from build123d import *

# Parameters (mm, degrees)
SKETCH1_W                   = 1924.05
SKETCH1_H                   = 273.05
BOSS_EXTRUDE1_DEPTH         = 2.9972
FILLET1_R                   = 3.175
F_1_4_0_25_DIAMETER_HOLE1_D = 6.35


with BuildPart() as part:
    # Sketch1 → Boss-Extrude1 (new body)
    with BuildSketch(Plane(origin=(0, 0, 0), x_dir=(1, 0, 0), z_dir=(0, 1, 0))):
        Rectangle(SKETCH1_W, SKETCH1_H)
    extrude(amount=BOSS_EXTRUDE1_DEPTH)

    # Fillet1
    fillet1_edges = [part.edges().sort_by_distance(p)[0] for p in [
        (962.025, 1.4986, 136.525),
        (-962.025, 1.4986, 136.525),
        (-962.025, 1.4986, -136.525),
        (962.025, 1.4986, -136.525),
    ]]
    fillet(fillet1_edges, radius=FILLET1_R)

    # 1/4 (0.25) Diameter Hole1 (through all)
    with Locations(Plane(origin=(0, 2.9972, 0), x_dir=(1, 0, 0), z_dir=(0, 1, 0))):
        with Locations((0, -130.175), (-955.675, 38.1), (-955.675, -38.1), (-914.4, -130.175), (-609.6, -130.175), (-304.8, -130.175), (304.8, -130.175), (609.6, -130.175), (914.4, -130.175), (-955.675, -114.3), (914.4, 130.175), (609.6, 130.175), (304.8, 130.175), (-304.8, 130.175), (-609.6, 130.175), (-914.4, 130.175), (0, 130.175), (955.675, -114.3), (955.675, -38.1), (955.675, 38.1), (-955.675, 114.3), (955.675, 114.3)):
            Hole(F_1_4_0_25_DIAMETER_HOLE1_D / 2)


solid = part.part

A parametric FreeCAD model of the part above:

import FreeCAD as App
import Part
import Sketcher
from FreeCAD import Vector
Q = App.Units.Quantity


def edges_at(feature, points):
    """Names of the edges that pass closest to the given points."""
    edges = feature.Shape.Edges
    near = lambda p: min(range(len(edges)), key=lambda i: edges[i].distToShape(Part.Vertex(*p))[0])
    return sorted({f"Edge{near(p) + 1}" for p in points})


def add_polygon(sketch, points):
    """Adds a closed chain of lines whose ends are joined by coincident constraints."""
    first, n = sketch.GeometryCount, len(points)
    for a, b in zip(points, points[1:] + points[:1]):
        sketch.addGeometry(Part.LineSegment(App.Vector(*a, 0), App.Vector(*b, 0)), False)
    for i in range(n):
        sketch.addConstraint(Sketcher.Constraint("Coincident", first + i, 2, first + (i + 1) % n, 1))

doc = App.newDocument("Part")
body = doc.addObject("PartDesign::Body", "Body")

# Sketch on XZ plane
sketch1 = doc.addObject("Sketcher::SketchObject", "Sketch")
body.addObject(sketch1)
sketch1.AttachmentSupport = (doc.XZ_Plane, [""])
sketch1.MapMode = "FlatFace"
add_polygon(sketch1, [(-962, -137), (-962, 137), (962, 137), (962, -137)])  # lines 0-3
sketch1.addConstraint([
    Sketcher.Constraint("Vertical", 0),
    Sketcher.Constraint("Horizontal", 1),
    Sketcher.Constraint("Vertical", 2),
    Sketcher.Constraint("Horizontal", 3),
    Sketcher.Constraint("Symmetric", 0, 2, 2, 2, -1, 1),
    Sketcher.Constraint("DistanceX", 1, 1, 1, 2, Q("75.75 in")),
    Sketcher.Constraint("DistanceY", 0, 1, 0, 2, Q("10.75 in")),
])
pad1 = doc.addObject("PartDesign::Pad", "Pad")
body.addObject(pad1)
pad1.Profile = sketch1
pad1.Length = Q("0.118 in")
pad1.Reversed = True
doc.recompute()

fillet = doc.addObject("PartDesign::Fillet", "Fillet")
body.addObject(fillet)
fillet.Base = (pad1, edges_at(pad1, [
    (962.025, 1.499, 136.525),
    (-962.025, 1.499, 136.525),
    (-962.025, 1.499, -136.525),
    (962.025, 1.499, -136.525),
]))
fillet.Radius = Q("0.125 in")

# Sketch on XZ plane
sketch2 = doc.addObject("Sketcher::SketchObject", "Sketch001")
body.addObject(sketch2)
sketch2.AttachmentSupport = (doc.XZ_Plane, [""])
sketch2.MapMode = "FlatFace"
sketch2.AttachmentOffset = App.Placement(Vector(0, 0, -0.118 * 25.4), App.Rotation())
sketch2.addGeometry([
    Part.Circle(Vector(0, 130.2, 0), Vector(0, 0, 1), 3.2),  # 0
    Part.Circle(Vector(-955.7, -38.1, 0), Vector(0, 0, 1), 3.2),  # 1
    Part.Circle(Vector(-955.7, 38.1, 0), Vector(0, 0, 1), 3.2),  # 2
    Part.Circle(Vector(-914.4, 130.2, 0), Vector(0, 0, 1), 3.2),  # 3
    Part.Circle(Vector(-609.6, 130.2, 0), Vector(0, 0, 1), 3.2),  # 4
    Part.Circle(Vector(-304.8, 130.2, 0), Vector(0, 0, 1), 3.2),  # 5
    Part.Circle(Vector(304.8, 130.2, 0), Vector(0, 0, 1), 3.2),  # 6
    Part.Circle(Vector(609.6, 130.2, 0), Vector(0, 0, 1), 3.2),  # 7
    Part.Circle(Vector(914.4, 130.2, 0), Vector(0, 0, 1), 3.2),  # 8
    Part.Circle(Vector(-955.7, 114.3, 0), Vector(0, 0, 1), 3.2),  # 9
    Part.Circle(Vector(914.4, -130.2, 0), Vector(0, 0, 1), 3.2),  # 10
    Part.Circle(Vector(609.6, -130.2, 0), Vector(0, 0, 1), 3.2),  # 11
    Part.Circle(Vector(304.8, -130.2, 0), Vector(0, 0, 1), 3.2),  # 12
    Part.Circle(Vector(-304.8, -130.2, 0), Vector(0, 0, 1), 3.2),  # 13
    Part.Circle(Vector(-609.6, -130.2, 0), Vector(0, 0, 1), 3.2),  # 14
    Part.Circle(Vector(-914.4, -130.2, 0), Vector(0, 0, 1), 3.2),  # 15
    Part.Circle(Vector(0, -130.2, 0), Vector(0, 0, 1), 3.2),  # 16
    Part.Circle(Vector(955.7, 114.3, 0), Vector(0, 0, 1), 3.2),  # 17
    Part.Circle(Vector(955.7, 38.1, 0), Vector(0, 0, 1), 3.2),  # 18
    Part.Circle(Vector(955.7, -38.1, 0), Vector(0, 0, 1), 3.2),  # 19
    Part.Circle(Vector(-955.7, -114.3, 0), Vector(0, 0, 1), 3.2),  # 20
    Part.Circle(Vector(955.7, -114.3, 0), Vector(0, 0, 1), 3.2),  # 21
], False)
sketch2.addConstraint([
    Sketcher.Constraint("Equal", 0, 1),
    Sketcher.Constraint("Equal", 1, 2),
    Sketcher.Constraint("Equal", 2, 3),
    Sketcher.Constraint("Equal", 3, 4),
    Sketcher.Constraint("Equal", 4, 5),
    Sketcher.Constraint("Equal", 5, 6),
    Sketcher.Constraint("Equal", 6, 7),
    Sketcher.Constraint("Equal", 7, 8),
    Sketcher.Constraint("Equal", 8, 9),
    Sketcher.Constraint("Equal", 9, 10),
    Sketcher.Constraint("Equal", 10, 11),
    Sketcher.Constraint("Equal", 11, 12),
    Sketcher.Constraint("Equal", 12, 13),
    Sketcher.Constraint("Equal", 13, 14),
    Sketcher.Constraint("Equal", 14, 15),
    Sketcher.Constraint("Equal", 15, 16),
    Sketcher.Constraint("Equal", 16, 17),
    Sketcher.Constraint("Equal", 17, 18),
    Sketcher.Constraint("Equal", 18, 19),
    Sketcher.Constraint("Equal", 19, 20),
    Sketcher.Constraint("Equal", 20, 21),
    Sketcher.Constraint("Symmetric", 3, 3, 10, 3, -1, 1),
    Sketcher.Constraint("Symmetric", 4, 3, 11, 3, -1, 1),
    Sketcher.Constraint("Symmetric", 5, 3, 12, 3, -1, 1),
    Sketcher.Constraint("Symmetric", 6, 3, 13, 3, -1, 1),
    Sketcher.Constraint("Symmetric", 7, 3, 14, 3, -1, 1),
    Sketcher.Constraint("Symmetric", 8, 3, 15, 3, -1, 1),
    Sketcher.Constraint("Symmetric", 0, 3, 16, 3, -1, 1),
    Sketcher.Constraint("Symmetric", 1, 3, 18, 3, -1, 1),
    Sketcher.Constraint("Symmetric", 2, 3, 19, 3, -1, 1),
    Sketcher.Constraint("Symmetric", 17, 3, 20, 3, -1, 1),
    Sketcher.Constraint("Symmetric", 9, 3, 21, 3, -1, 1),
    Sketcher.Constraint("Symmetric", 5, 3, 6, 3, -2),
    Sketcher.Constraint("Symmetric", 4, 3, 7, 3, -2),
    Sketcher.Constraint("Symmetric", 3, 3, 8, 3, -2),
    Sketcher.Constraint("Symmetric", 9, 3, 17, 3, -2),
    Sketcher.Constraint("Symmetric", 2, 3, 18, 3, -2),
    Sketcher.Constraint("PointOnObject", 0, 3, -2),
    Sketcher.Constraint("Horizontal", 0, 3, 3, 3),
    Sketcher.Constraint("Horizontal", 3, 3, 4, 3),
    Sketcher.Constraint("Horizontal", 4, 3, 5, 3),
    Sketcher.Constraint("Vertical", 2, 3, 9, 3),
    Sketcher.Constraint("Diameter", 0, Q("0.25 in")),
    Sketcher.Constraint("DistanceX", 3, 3, -1, 1, Q("36 in")),
    Sketcher.Constraint("DistanceX", 4, 3, -1, 1, Q("24 in")),
    Sketcher.Constraint("DistanceX", 5, 3, -1, 1, Q("12 in")),
    Sketcher.Constraint("DistanceY", 1, 3, 2, 3, Q("3 in")),
    Sketcher.Constraint("DistanceY", 2, 3, 9, 3, Q("3 in")),
    Sketcher.Constraint("DistanceY", 10, 3, 8, 3, Q("10.25 in")),
    Sketcher.Constraint("DistanceX", 1, 3, -1, 1, Q("37.625 in")),
])
doc.recompute()
hole = doc.addObject("PartDesign::Hole", "Hole")
body.addObject(hole)
hole.Profile = sketch2
hole.ThreadType = "None"
hole.Diameter = Q("0.25 in")
hole.DepthType = "ThroughAll"
hole.Reversed = True

doc.recompute()
